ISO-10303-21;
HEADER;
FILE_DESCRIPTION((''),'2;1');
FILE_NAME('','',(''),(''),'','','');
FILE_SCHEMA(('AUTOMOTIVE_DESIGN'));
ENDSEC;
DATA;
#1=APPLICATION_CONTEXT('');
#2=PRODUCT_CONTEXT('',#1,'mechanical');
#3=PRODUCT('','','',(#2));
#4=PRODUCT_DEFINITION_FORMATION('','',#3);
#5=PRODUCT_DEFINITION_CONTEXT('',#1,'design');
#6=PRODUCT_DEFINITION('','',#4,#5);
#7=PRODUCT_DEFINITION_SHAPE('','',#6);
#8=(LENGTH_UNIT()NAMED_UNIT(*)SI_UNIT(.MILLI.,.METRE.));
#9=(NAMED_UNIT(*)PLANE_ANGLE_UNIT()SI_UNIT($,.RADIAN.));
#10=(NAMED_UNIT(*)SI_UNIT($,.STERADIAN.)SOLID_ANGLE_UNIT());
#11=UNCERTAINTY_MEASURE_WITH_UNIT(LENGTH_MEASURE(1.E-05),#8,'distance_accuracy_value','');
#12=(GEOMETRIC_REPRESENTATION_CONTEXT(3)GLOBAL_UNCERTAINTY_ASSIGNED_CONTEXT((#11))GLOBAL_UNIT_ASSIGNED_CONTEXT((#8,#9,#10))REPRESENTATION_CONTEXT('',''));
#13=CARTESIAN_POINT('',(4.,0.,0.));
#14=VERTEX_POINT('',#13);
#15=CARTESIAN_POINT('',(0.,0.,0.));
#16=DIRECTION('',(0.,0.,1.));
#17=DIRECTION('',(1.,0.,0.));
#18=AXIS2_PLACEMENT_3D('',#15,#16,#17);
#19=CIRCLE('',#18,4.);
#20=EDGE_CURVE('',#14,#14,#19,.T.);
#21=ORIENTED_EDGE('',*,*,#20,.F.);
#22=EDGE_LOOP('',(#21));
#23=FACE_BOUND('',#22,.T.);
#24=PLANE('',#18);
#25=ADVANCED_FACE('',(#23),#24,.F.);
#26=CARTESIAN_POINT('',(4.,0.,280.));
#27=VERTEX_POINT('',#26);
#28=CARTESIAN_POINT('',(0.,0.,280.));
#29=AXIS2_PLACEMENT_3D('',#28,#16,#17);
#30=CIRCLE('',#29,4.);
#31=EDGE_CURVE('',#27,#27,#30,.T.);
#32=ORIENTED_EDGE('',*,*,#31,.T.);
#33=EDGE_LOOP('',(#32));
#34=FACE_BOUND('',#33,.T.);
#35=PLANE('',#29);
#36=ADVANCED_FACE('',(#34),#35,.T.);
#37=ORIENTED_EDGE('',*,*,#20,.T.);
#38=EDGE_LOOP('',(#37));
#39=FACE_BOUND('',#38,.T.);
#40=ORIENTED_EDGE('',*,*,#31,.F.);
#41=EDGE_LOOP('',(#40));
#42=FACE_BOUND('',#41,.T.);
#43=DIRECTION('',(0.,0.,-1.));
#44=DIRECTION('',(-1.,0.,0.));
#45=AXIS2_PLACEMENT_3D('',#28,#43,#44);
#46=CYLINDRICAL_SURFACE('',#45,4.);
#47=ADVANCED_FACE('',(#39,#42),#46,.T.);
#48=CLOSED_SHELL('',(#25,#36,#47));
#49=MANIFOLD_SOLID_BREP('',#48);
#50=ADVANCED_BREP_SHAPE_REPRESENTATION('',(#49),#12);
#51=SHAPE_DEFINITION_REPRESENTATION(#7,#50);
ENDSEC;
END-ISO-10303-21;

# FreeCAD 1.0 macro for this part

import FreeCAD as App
import Part
import Sketcher

V = App.Vector

doc = App.newDocument("Part")
params = doc.addObject("Spreadsheet::Sheet", "Params")
for row, (alias, value) in enumerate([
    ("sketch1_diameter", "8 mm"),
    ("pad1_length", "280 mm"),
], start=1):
    params.set(f"A{row}", alias)
    params.set(f"B{row}", "=" + value)
    params.setAlias(f"B{row}", alias)

body = doc.addObject("PartDesign::Body", "Body")

# Sketch on XY plane
sketch1 = doc.addObject("Sketcher::SketchObject", "Sketch")
body.addObject(sketch1)
sketch1.AttachmentSupport = (doc.XY_Plane, [""])
sketch1.MapMode = "FlatFace"
sketch1.addGeometry(Part.Circle(V(0, 0, 0), V(0, 0, 1), 4), False)
sketch1.addConstraint(Sketcher.Constraint("Coincident", 0, 3, -1, 1))
sketch1.addConstraint(Sketcher.Constraint("Diameter", 0, 8.0))
sketch1.setExpression("Constraints[1]", "Params.sketch1_diameter")
pad1 = doc.addObject("PartDesign::Pad", "Pad")
body.addObject(pad1)
pad1.Profile = sketch1
pad1.setExpression("Length", "Params.pad1_length")

doc.recompute()
